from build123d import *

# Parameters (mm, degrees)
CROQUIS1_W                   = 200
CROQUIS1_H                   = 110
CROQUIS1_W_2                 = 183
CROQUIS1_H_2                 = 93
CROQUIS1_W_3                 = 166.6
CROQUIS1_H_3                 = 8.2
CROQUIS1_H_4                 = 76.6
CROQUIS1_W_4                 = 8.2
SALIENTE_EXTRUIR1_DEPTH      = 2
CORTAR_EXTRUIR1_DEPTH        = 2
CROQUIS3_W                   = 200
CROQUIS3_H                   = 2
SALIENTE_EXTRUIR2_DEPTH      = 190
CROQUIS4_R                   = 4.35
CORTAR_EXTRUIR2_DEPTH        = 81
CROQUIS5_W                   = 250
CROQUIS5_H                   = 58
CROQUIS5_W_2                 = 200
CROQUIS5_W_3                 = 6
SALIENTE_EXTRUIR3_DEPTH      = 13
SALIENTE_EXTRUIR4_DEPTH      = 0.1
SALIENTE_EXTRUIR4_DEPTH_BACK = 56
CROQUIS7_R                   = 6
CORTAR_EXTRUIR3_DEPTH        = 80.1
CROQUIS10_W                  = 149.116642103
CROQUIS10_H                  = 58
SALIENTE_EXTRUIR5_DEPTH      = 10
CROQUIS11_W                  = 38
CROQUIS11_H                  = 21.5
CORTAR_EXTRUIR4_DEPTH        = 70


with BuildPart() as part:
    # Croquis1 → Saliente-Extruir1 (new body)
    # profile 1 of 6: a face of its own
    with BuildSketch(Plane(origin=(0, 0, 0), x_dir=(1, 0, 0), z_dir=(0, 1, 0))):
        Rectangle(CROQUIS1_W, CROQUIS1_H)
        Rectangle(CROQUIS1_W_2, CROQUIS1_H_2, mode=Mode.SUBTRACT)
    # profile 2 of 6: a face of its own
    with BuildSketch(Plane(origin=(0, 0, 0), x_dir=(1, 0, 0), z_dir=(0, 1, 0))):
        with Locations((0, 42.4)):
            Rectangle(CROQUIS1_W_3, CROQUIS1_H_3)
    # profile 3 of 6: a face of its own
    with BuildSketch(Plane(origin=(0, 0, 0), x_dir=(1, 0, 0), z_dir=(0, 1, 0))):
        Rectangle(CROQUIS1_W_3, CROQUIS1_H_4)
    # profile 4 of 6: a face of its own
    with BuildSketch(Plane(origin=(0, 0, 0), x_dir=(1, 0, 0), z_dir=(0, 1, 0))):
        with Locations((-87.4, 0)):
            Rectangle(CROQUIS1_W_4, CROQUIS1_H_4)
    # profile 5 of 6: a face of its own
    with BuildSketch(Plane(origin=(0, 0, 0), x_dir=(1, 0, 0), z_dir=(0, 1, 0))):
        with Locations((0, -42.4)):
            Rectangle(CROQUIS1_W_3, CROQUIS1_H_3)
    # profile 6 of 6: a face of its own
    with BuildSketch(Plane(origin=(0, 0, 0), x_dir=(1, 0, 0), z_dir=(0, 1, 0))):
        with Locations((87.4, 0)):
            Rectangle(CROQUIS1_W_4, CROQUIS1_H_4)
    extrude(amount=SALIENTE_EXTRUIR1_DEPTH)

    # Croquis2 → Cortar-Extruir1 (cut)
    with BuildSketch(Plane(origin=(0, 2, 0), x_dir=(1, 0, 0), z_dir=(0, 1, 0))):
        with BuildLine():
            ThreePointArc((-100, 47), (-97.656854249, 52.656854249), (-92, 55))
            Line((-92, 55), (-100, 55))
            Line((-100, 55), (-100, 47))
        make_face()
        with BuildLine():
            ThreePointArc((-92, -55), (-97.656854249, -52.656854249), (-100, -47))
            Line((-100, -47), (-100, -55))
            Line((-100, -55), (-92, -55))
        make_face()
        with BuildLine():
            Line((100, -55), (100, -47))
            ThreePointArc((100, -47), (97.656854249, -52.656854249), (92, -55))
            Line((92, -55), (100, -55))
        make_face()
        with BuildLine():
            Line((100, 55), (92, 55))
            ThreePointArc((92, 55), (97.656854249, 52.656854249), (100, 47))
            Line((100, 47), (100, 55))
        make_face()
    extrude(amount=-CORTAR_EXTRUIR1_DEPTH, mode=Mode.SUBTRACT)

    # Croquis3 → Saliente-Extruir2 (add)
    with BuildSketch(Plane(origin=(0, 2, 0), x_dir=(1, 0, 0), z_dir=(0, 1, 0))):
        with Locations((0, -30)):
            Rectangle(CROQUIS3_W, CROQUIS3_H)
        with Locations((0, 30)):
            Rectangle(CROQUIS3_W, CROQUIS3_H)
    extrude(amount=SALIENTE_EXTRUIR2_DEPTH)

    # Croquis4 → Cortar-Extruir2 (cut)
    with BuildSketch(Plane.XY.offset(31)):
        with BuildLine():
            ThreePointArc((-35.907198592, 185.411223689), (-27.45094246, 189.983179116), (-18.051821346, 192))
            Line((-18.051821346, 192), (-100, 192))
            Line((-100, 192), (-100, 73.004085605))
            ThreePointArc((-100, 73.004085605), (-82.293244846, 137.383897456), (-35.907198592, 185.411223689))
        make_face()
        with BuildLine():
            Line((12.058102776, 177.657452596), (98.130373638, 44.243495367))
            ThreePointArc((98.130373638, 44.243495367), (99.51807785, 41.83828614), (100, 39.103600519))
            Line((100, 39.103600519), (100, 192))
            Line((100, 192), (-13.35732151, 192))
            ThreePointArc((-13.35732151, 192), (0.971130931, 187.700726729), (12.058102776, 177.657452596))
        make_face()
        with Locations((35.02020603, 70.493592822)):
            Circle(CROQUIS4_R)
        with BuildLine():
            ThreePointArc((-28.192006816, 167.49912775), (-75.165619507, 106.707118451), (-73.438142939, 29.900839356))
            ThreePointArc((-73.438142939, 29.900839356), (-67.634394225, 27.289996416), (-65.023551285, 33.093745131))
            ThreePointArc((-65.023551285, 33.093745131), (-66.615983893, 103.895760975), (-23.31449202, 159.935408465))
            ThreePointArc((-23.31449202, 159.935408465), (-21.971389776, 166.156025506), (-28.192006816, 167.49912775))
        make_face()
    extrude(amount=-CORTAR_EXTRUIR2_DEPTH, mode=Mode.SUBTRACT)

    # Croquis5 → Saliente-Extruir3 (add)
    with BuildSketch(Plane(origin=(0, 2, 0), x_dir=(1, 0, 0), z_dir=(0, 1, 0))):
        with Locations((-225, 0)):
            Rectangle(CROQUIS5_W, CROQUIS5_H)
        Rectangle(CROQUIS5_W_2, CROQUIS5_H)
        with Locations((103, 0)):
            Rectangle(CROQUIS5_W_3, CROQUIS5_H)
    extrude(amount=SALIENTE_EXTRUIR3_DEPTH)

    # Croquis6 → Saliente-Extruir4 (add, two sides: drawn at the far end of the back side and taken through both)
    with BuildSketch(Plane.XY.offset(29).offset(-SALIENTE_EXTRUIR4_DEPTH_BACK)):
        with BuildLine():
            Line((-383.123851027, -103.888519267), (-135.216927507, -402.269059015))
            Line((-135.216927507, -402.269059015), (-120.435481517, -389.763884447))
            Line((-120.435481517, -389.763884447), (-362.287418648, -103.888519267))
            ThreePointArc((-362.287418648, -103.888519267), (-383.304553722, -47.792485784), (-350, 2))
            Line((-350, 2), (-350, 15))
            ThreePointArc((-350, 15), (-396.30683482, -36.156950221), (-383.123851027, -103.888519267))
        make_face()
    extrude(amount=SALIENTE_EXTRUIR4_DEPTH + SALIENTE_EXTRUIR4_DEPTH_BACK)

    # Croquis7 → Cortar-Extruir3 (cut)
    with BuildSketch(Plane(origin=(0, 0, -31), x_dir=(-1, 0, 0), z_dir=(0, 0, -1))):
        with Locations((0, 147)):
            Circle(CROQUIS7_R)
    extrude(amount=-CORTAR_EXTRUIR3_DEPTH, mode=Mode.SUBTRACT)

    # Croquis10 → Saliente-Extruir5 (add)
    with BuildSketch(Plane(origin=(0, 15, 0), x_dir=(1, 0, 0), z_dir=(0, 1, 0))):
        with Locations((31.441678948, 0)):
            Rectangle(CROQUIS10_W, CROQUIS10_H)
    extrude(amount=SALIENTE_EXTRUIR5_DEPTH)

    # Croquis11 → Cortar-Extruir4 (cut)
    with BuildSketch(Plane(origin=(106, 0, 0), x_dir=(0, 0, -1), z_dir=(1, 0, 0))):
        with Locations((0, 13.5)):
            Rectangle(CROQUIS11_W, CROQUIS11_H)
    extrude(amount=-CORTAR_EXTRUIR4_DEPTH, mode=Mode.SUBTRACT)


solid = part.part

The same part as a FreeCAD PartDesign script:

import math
import FreeCAD as App
import Part
import Sketcher
from FreeCAD import Vector
Q = App.Units.Quantity

doc = App.newDocument("Part")
params = doc.addObject("Spreadsheet::Sheet", "Params")
for row, (alias, value) in enumerate([
    ("sketch1_width", "200 mm"),
    ("sketch1_height", "110 mm"),
    ("sketch1_width2", "8.2 mm"),
    ("pad1_length", "2 mm"),
    ("sketch2_radius", "8 mm"),
    ("pocket1_length", "2 mm"),
    ("sketch3_width", "200 mm"),
    ("sketch3_height", "2 mm"),
    ("pad2_length", "190 mm"),
    ("sketch4_radius", "8 mm"),
    ("sketch4_diameter", "8.7 mm"),
    ("sketch4_radius2", "4.5 mm"),
    ("pocket2_length", "81 mm"),
    ("sketch5_width", "456 mm"),
    ("sketch5_height", "58 mm"),
    ("pad3_length", "13 mm"),
    ("sketch6_height", "13 mm"),
    ("pad4_length", "0.1 mm"),
    ("pad4_length2", "56 mm"),
    ("sketch7_diameter", "12 mm"),
    ("pocket3_length", "80.1 mm"),
    ("sketch8_height", "58 mm"),
    ("pad5_length", "10 mm"),
    ("sketch9_height", "38 mm"),
    ("sketch9_width", "21.5 mm"),
    ("pocket4_length", "70 mm"),
], start=1):
    params.set(f"A{row}", alias)
    params.set(f"B{row}", "=" + value)
    params.setAlias(f"B{row}", alias)

body = doc.addObject("PartDesign::Body", "Body")

# Sketch on XZ plane
sketch1 = body.newObject("Sketcher::SketchObject", "Sketch")
sketch1.AttachmentSupport = (doc.getObject("XZ_Plane"), [""])
sketch1.MapMode = "FlatFace"
sketch1.addGeometry([
    Part.LineSegment(Vector(-100, -55, 0), Vector(-100, 55, 0)),  # 0
    Part.LineSegment(Vector(-100, 55, 0), Vector(100, 55, 0)),  # 1
    Part.LineSegment(Vector(100, 55, 0), Vector(100, -55, 0)),  # 2
    Part.LineSegment(Vector(100, -55, 0), Vector(-100, -55, 0)),  # 3
    Part.LineSegment(Vector(-83.3, 46.5, 0), Vector(-91.5, 46.5, 0)),  # 4
    Part.LineSegment(Vector(-91.5, 46.5, 0), Vector(-91.5, 38.3, 0)),  # 5
    Part.LineSegment(Vector(-91.5, 38.3, 0), Vector(-83.3, 38.3, 0)),  # 6
    Part.LineSegment(Vector(-83.3, 38.3, 0), Vector(-83.3, 46.5, 0)),  # 7
    Part.LineSegment(Vector(91.5, 46.5, 0), Vector(83.3, 46.5, 0)),  # 8
    Part.LineSegment(Vector(83.3, 46.5, 0), Vector(83.3, 38.3, 0)),  # 9
    Part.LineSegment(Vector(83.3, 38.3, 0), Vector(91.5, 38.3, 0)),  # 10
    Part.LineSegment(Vector(91.5, 38.3, 0), Vector(91.5, 46.5, 0)),  # 11
    Part.LineSegment(Vector(91.5, -46.5, 0), Vector(91.5, -38.3, 0)),  # 12
    Part.LineSegment(Vector(91.5, -38.3, 0), Vector(83.3, -38.3, 0)),  # 13
    Part.LineSegment(Vector(83.3, -38.3, 0), Vector(83.3, -46.5, 0)),  # 14
    Part.LineSegment(Vector(83.3, -46.5, 0), Vector(91.5, -46.5, 0)),  # 15
    Part.LineSegment(Vector(-91.5, -46.5, 0), Vector(-83.3, -46.5, 0)),  # 16
    Part.LineSegment(Vector(-83.3, -46.5, 0), Vector(-83.3, -38.3, 0)),  # 17
    Part.LineSegment(Vector(-83.3, -38.3, 0), Vector(-91.5, -38.3, 0)),  # 18
    Part.LineSegment(Vector(-91.5, -38.3, 0), Vector(-91.5, -46.5, 0)),  # 19
], False)
sketch1.addConstraint([
    Sketcher.Constraint("Coincident", 0, 2, 1, 1),
    Sketcher.Constraint("Coincident", 1, 2, 2, 1),
    Sketcher.Constraint("Coincident", 2, 2, 3, 1),
    Sketcher.Constraint("Coincident", 3, 2, 0, 1),
    Sketcher.Constraint("Coincident", 4, 2, 5, 1),
    Sketcher.Constraint("Coincident", 5, 2, 6, 1),
    Sketcher.Constraint("Coincident", 6, 2, 7, 1),
    Sketcher.Constraint("Coincident", 7, 2, 4, 1),
    Sketcher.Constraint("Coincident", 8, 2, 9, 1),
    Sketcher.Constraint("Coincident", 9, 2, 10, 1),
    Sketcher.Constraint("Coincident", 10, 2, 11, 1),
    Sketcher.Constraint("Coincident", 11, 2, 8, 1),
    Sketcher.Constraint("Coincident", 12, 2, 13, 1),
    Sketcher.Constraint("Coincident", 13, 2, 14, 1),
    Sketcher.Constraint("Coincident", 14, 2, 15, 1),
    Sketcher.Constraint("Coincident", 15, 2, 12, 1),
    Sketcher.Constraint("Coincident", 16, 2, 17, 1),
    Sketcher.Constraint("Coincident", 17, 2, 18, 1),
    Sketcher.Constraint("Coincident", 18, 2, 19, 1),
    Sketcher.Constraint("Coincident", 19, 2, 16, 1),
    Sketcher.Constraint("Vertical", 0),
    Sketcher.Constraint("Horizontal", 1),
    Sketcher.Constraint("Vertical", 2),
    Sketcher.Constraint("Horizontal", 3),
    Sketcher.Constraint("Horizontal", 4),
    Sketcher.Constraint("Vertical", 5),
    Sketcher.Constraint("Horizontal", 6),
    Sketcher.Constraint("Vertical", 7),
    Sketcher.Constraint("Horizontal", 8),
    Sketcher.Constraint("Vertical", 9),
    Sketcher.Constraint("Horizontal", 10),
    Sketcher.Constraint("Vertical", 11),
    Sketcher.Constraint("Vertical", 12),
    Sketcher.Constraint("Horizontal", 13),
    Sketcher.Constraint("Vertical", 14),
    Sketcher.Constraint("Horizontal", 15),
    Sketcher.Constraint("Horizontal", 16),
    Sketcher.Constraint("Vertical", 17),
    Sketcher.Constraint("Horizontal", 18),
    Sketcher.Constraint("Vertical", 19),
    Sketcher.Constraint("Symmetric", 0, 2, 2, 2, -1, 1),
    Sketcher.Constraint("Symmetric", 5, 2, 12, 2, -1, 1),
    Sketcher.Constraint("Symmetric", 7, 2, 14, 2, -1, 1),
    Sketcher.Constraint("Symmetric", 8, 2, 16, 2, -1, 1),
    Sketcher.Constraint("Symmetric", 10, 2, 18, 2, -1, 1),
    Sketcher.Constraint("Symmetric", 7, 2, 8, 2, -2),
    Sketcher.Constraint("Symmetric", 5, 2, 10, 2, -2),
    Sketcher.Constraint("Equal", 18, 5),
    Sketcher.Constraint("DistanceX", 1, 1, 1, 2, Q("200 mm")),
    Sketcher.Constraint("DistanceY", 0, 1, 0, 2, Q("110 mm")),
    Sketcher.Constraint("DistanceX", 4, 2, 4, 1, Q("8.2 mm")),
    Sketcher.Constraint("DistanceY", 16, 2, 7, 2, Q("93 mm")),
    Sketcher.Constraint("DistanceX", 4, 2, -1, 1, Q("91.5 mm")),
])
sketch1.setExpression("Constraints[48]", "Params.sketch1_width")
sketch1.setExpression("Constraints[49]", "Params.sketch1_height")
sketch1.setExpression("Constraints[50]", "Params.sketch1_width2")
pad1 = body.newObject("PartDesign::Pad", "Pad")
pad1.Profile = sketch1
pad1.setExpression("Length", "Params.pad1_length")
pad1.Reversed = True

# Sketch on XZ plane
sketch2 = body.newObject("Sketcher::SketchObject", "Sketch001")
sketch2.AttachmentSupport = (doc.getObject("XZ_Plane"), [""])
sketch2.MapMode = "FlatFace"
sketch2.AttachmentOffset = App.Placement(Vector(0, 0, -2), App.Rotation())
sketch2.addGeometry([
    Part.ArcOfCircle(Part.Circle(Vector(-92, -47, 0), Vector(0, 0, 1), 8), math.radians(-180), math.radians(-90)),  # 0
    Part.LineSegment(Vector(-92, -55, 0), Vector(-100, -55, 0)),  # 1
    Part.LineSegment(Vector(-100, -55, 0), Vector(-100, -47, 0)),  # 2
    Part.ArcOfCircle(Part.Circle(Vector(-92, 47, 0), Vector(0, 0, 1), 8), math.radians(90), math.radians(180)),  # 3
    Part.LineSegment(Vector(-100, 47, 0), Vector(-100, 55, 0)),  # 4
    Part.LineSegment(Vector(-100, 55, 0), Vector(-92, 55, 0)),  # 5
    Part.LineSegment(Vector(100, 55, 0), Vector(100, 47, 0)),  # 6
    Part.ArcOfCircle(Part.Circle(Vector(92, 47, 0), Vector(0, 0, 1), 8), math.radians(0), math.radians(90)),  # 7
    Part.LineSegment(Vector(92, 55, 0), Vector(100, 55, 0)),  # 8
    Part.LineSegment(Vector(100, -55, 0), Vector(92, -55, 0)),  # 9
    Part.ArcOfCircle(Part.Circle(Vector(92, -47, 0), Vector(0, 0, 1), 8), math.radians(-90), math.radians(0)),  # 10
    Part.LineSegment(Vector(100, -47, 0), Vector(100, -55, 0)),  # 11
], False)
sketch2.addConstraint([
    Sketcher.Constraint("Tangent", 0, 2, 1, 1),
    Sketcher.Constraint("Coincident", 1, 2, 2, 1),
    Sketcher.Constraint("Tangent", 2, 2, 0, 1),
    Sketcher.Constraint("Tangent", 3, 2, 4, 1),
    Sketcher.Constraint("Coincident", 4, 2, 5, 1),
    Sketcher.Constraint("Tangent", 5, 2, 3, 1),
    Sketcher.Constraint("Tangent", 6, 2, 7, 1),
    Sketcher.Constraint("Tangent", 7, 2, 8, 1),
    Sketcher.Constraint("Coincident", 8, 2, 6, 1),
    Sketcher.Constraint("Tangent", 9, 2, 10, 1),
    Sketcher.Constraint("Tangent", 10, 2, 11, 1),
    Sketcher.Constraint("Coincident", 11, 2, 9, 1),
    Sketcher.Constraint("Horizontal", 1),
    Sketcher.Constraint("Vertical", 2),
    Sketcher.Constraint("Vertical", 4),
    Sketcher.Constraint("Horizontal", 5),
    Sketcher.Constraint("Vertical", 6),
    Sketcher.Constraint("Horizontal", 8),
    Sketcher.Constraint("Horizontal", 9),
    Sketcher.Constraint("Vertical", 11),
    Sketcher.Constraint("Equal", 0, 3),
    Sketcher.Constraint("Equal", 3, 7),
    Sketcher.Constraint("Equal", 7, 10),
    Sketcher.Constraint("Symmetric", 0, 3, 7, 3, -1, 1),
    Sketcher.Constraint("Symmetric", 3, 3, 10, 3, -1, 1),
    Sketcher.Constraint("Symmetric", 3, 3, 7, 3, -2),
    Sketcher.Constraint("Radius", 0, Q("8 mm")),
    Sketcher.Constraint("DistanceX", 0, 3, -1, 1, Q("92 mm")),
    Sketcher.Constraint("DistanceY", 0, 3, -1, 1, Q("47 mm")),
])
sketch2.setExpression("Constraints[26]", "Params.sketch2_radius")
pocket1 = body.newObject("PartDesign::Pocket", "Pocket")
pocket1.Profile = sketch2
pocket1.setExpression("Length", "Params.pocket1_length")
pocket1.Reversed = True

# Sketch on XZ plane
sketch3 = body.newObject("Sketcher::SketchObject", "Sketch002")
sketch3.AttachmentSupport = (doc.getObject("XZ_Plane"), [""])
sketch3.MapMode = "FlatFace"
sketch3.AttachmentOffset = App.Placement(Vector(0, 0, -2), App.Rotation())
sketch3.addGeometry([
    Part.LineSegment(Vector(-100, 29, 0), Vector(-100, 31, 0)),  # 0
    Part.LineSegment(Vector(-100, 31, 0), Vector(100, 31, 0)),  # 1
    Part.LineSegment(Vector(100, 31, 0), Vector(100, 29, 0)),  # 2
    Part.LineSegment(Vector(100, 29, 0), Vector(-100, 29, 0)),  # 3
    Part.LineSegment(Vector(-100, -31, 0), Vector(-100, -29, 0)),  # 4
    Part.LineSegment(Vector(-100, -29, 0), Vector(100, -29, 0)),  # 5
    Part.LineSegment(Vector(100, -29, 0), Vector(100, -31, 0)),  # 6
    Part.LineSegment(Vector(100, -31, 0), Vector(-100, -31, 0)),  # 7
], False)
sketch3.addConstraint([
    Sketcher.Constraint("Coincident", 0, 2, 1, 1),
    Sketcher.Constraint("Coincident", 1, 2, 2, 1),
    Sketcher.Constraint("Coincident", 2, 2, 3, 1),
    Sketcher.Constraint("Coincident", 3, 2, 0, 1),
    Sketcher.Constraint("Coincident", 4, 2, 5, 1),
    Sketcher.Constraint("Coincident", 5, 2, 6, 1),
    Sketcher.Constraint("Coincident", 6, 2, 7, 1),
    Sketcher.Constraint("Coincident", 7, 2, 4, 1),
    Sketcher.Constraint("Vertical", 0),
    Sketcher.Constraint("Horizontal", 1),
    Sketcher.Constraint("Vertical", 2),
    Sketcher.Constraint("Horizontal", 3),
    Sketcher.Constraint("Vertical", 4),
    Sketcher.Constraint("Horizontal", 5),
    Sketcher.Constraint("Vertical", 6),
    Sketcher.Constraint("Horizontal", 7),
    Sketcher.Constraint("Symmetric", 2, 2, 4, 2, -1, 1),
    Sketcher.Constraint("Symmetric", 0, 2, 6, 2, -1, 1),
    Sketcher.Constraint("Vertical", 3, 2, 4, 2),
    Sketcher.Constraint("DistanceX", 1, 1, 1, 2, Q("200 mm")),
    Sketcher.Constraint("DistanceY", 0, 1, 0, 2, Q("2 mm")),
    Sketcher.Constraint("DistanceY", -1, 1, 0, 2, Q("31 mm")),
])
sketch3.setExpression("Constraints[19]", "Params.sketch3_width")
sketch3.setExpression("Constraints[20]", "Params.sketch3_height")
pad2 = body.newObject("PartDesign::Pad", "Pad001")
pad2.Profile = sketch3
pad2.setExpression("Length", "Params.pad2_length")
pad2.Reversed = True

# Sketch on XY plane
sketch4 = body.newObject("Sketcher::SketchObject", "Sketch003")
sketch4.AttachmentSupport = (doc.getObject("XY_Plane"), [""])
sketch4.MapMode = "FlatFace"
sketch4.AttachmentOffset = App.Placement(Vector(0, 0, 31), App.Rotation())
sketch4.addGeometry([
    Part.ArcOfCircle(Part.Circle(Vector(-15.704571, 158.150882, 0), Vector(0, 0, 1), 33.930405), math.radians(93.966797), math.radians(126.542128)),  # 0
    Part.LineSegment(Vector(-18.051821, 192, 0), Vector(-100, 192, 0)),  # 1
    Part.LineSegment(Vector(-100, 192, 0), Vector(-100, 73.004086, 0)),  # 2
    Part.ArcOfCircle(Part.Circle(Vector(35.020206, 70.493593, 0), Vector(0, 0, 1), 135.043543), math.radians(121.682972), math.radians(178.934796)),  # 3
    Part.LineSegment(Vector(12.058103, 177.657453, 0), Vector(98.130374, 44.243495, 0)),  # 4
    Part.ArcOfCircle(Part.Circle(Vector(92, 39.103601, 0), Vector(0, 0, 1), 8), math.radians(0), math.radians(39.977509)),  # 5
    Part.LineSegment(Vector(100, 39.103601, 0), Vector(100, 192, 0)),  # 6
    Part.LineSegment(Vector(100, 192, 0), Vector(-13.357322, 192, 0)),  # 7
    Part.ArcOfCircle(Part.Circle(Vector(-15.704571, 158.150882, 0), Vector(0, 0, 1), 33.930405), math.radians(35.09259), math.radians(86.033203)),  # 8
    Part.Circle(Vector(35.020206, 70.493593, 0), Vector(0, 0, 1), 4.35),  # 9
    Part.ArcOfCircle(Part.Circle(Vector(34.200954, 70.744354, 0), Vector(0, 0, 1), 115.127616), math.radians(122.816216), math.radians(200.779184)),  # 10
    Part.ArcOfCircle(Part.Circle(Vector(-69.230847, 31.497292, 0), Vector(0, 0, 1), 4.5), math.radians(-159.220816), math.radians(20.779184)),  # 11
    Part.ArcOfCircle(Part.Circle(Vector(34.200954, 70.744354, 0), Vector(0, 0, 1), 106.127616), math.radians(122.816216), math.radians(200.779184)),  # 12
    Part.ArcOfCircle(Part.Circle(Vector(-25.753249, 163.717268, 0), Vector(0, 0, 1), 4.5), math.radians(-57.183784), math.radians(122.816216)),  # 13
], False)
sketch4.addConstraint([
    Sketcher.Constraint("Coincident", 0, 1, 1, 1),
    Sketcher.Constraint("Coincident", 1, 2, 2, 1),
    Sketcher.Constraint("Coincident", 2, 2, 3, 2),
    Sketcher.Constraint("Coincident", 3, 1, 0, 2),
    Sketcher.Constraint("Coincident", 4, 2, 5, 2),
    Sketcher.Constraint("Tangent", 5, 1, 6, 1),
    Sketcher.Constraint("Coincident", 6, 2, 7, 1),
    Sketcher.Constraint("Coincident", 7, 2, 8, 2),
    Sketcher.Constraint("Coincident", 8, 1, 4, 1),
    Sketcher.Constraint("Tangent", 10, 2, 11, 1),
    Sketcher.Constraint("Tangent", 11, 2, 12, 2),
    Sketcher.Constraint("Tangent", 12, 1, 13, 1),
    Sketcher.Constraint("Tangent", 13, 2, 10, 1),
    Sketcher.Constraint("Horizontal", 1),
    Sketcher.Constraint("Vertical", 2),
    Sketcher.Constraint("Vertical", 6),
    Sketcher.Constraint("Horizontal", 7),
    Sketcher.Constraint("Coincident", 8, 3, 0, 3),
    Sketcher.Constraint("Coincident", 9, 3, 3, 3),
    Sketcher.Constraint("Coincident", 12, 3, 10, 3),
    Sketcher.Constraint("Equal", 0, 8),
    Sketcher.Constraint("Symmetric", 1, 2, 6, 2, -2),
    Sketcher.Constraint("Radius", 5, Q("8 mm")),
    Sketcher.Constraint("Diameter", 9, Q("8.7 mm")),
    Sketcher.Constraint("Radius", 11, Q("4.5 mm")),
    Sketcher.Constraint("DistanceX", -1, 1, 5, 3, Q("92 mm")),
    Sketcher.Constraint("DistanceY", -1, 1, 0, 1, Q("192 mm")),
    Sketcher.Constraint("DistanceY", 6, 1, 6, 2, Q("152.896399 mm")),
    Sketcher.Constraint("Radius", 0, Q("33.930405 mm")),
    Sketcher.Constraint("Radius", 3, Q("135.043543 mm")),
    Sketcher.Constraint("Radius", 10, Q("115.127616 mm")),
    Sketcher.Constraint("DistanceX", 1, 2, 1, 1, Q("81.948179 mm")),
    Sketcher.Constraint("DistanceX", 7, 2, 7, 1, Q("113.357322 mm")),
    Sketcher.Constraint("DistanceX", 3, 1, -1, 1, Q("35.907199 mm")),
    Sketcher.Constraint("DistanceX", 11, 3, 10, 3, Q("103.431801 mm")),
    Sketcher.Constraint("DistanceY", 11, 3, 9, 3, Q("38.996301 mm")),
    Sketcher.Constraint("Distance", 4, Q("158.769392 mm")),
    Sketcher.Constraint("DistanceY", 2, 2, 2, 1, Q("118.995914 mm")),
    Sketcher.Constraint("DistanceX", 13, 3, -1, 1, Q("25.753249 mm")),
    Sketcher.Constraint("DistanceY", -1, 1, 13, 3, Q("163.717268 mm")),
    Sketcher.Constraint("DistanceX", 10, 3, 4, 2, Q("63.929419 mm")),
])
sketch4.setExpression("Constraints[22]", "Params.sketch4_radius")
sketch4.setExpression("Constraints[23]", "Params.sketch4_diameter")
sketch4.setExpression("Constraints[24]", "Params.sketch4_radius2")
pocket2 = body.newObject("PartDesign::Pocket", "Pocket001")
pocket2.Profile = sketch4
pocket2.setExpression("Length", "Params.pocket2_length")

# Sketch on XZ plane
sketch5 = body.newObject("Sketcher::SketchObject", "Sketch004")
sketch5.AttachmentSupport = (doc.getObject("XZ_Plane"), [""])
sketch5.MapMode = "FlatFace"
sketch5.AttachmentOffset = App.Placement(Vector(0, 0, -2), App.Rotation())
sketch5.addGeometry([
    Part.LineSegment(Vector(-350, -29, 0), Vector(-350, 29, 0)),
    Part.LineSegment(Vector(-350, 29, 0), Vector(106, 29, 0)),
    Part.LineSegment(Vector(106, 29, 0), Vector(106, -29, 0)),
    Part.LineSegment(Vector(106, -29, 0), Vector(-350, -29, 0)),
], False)
sketch5.addConstraint([
    Sketcher.Constraint("Coincident", 0, 2, 1, 1),
    Sketcher.Constraint("Coincident", 1, 2, 2, 1),
    Sketcher.Constraint("Coincident", 2, 2, 3, 1),
    Sketcher.Constraint("Coincident", 3, 2, 0, 1),
    Sketcher.Constraint("Vertical", 0),
    Sketcher.Constraint("Horizontal", 1),
    Sketcher.Constraint("Vertical", 2),
    Sketcher.Constraint("Horizontal", 3),
    Sketcher.Constraint("DistanceX", 1, 1, 1, 2, Q("456 mm")),
    Sketcher.Constraint("DistanceY", 0, 1, 0, 2, Q("58 mm")),
    Sketcher.Constraint("DistanceX", 0, 2, -1, 1, Q("350 mm")),
    Sketcher.Constraint("DistanceY", -1, 1, 0, 2, Q("29 mm")),
])
sketch5.setExpression("Constraints[8]", "Params.sketch5_width")
sketch5.setExpression("Constraints[9]", "Params.sketch5_height")
pad3 = body.newObject("PartDesign::Pad", "Pad002")
pad3.Profile = sketch5
pad3.setExpression("Length", "Params.pad3_length")
pad3.Reversed = True

# Sketch on XY plane
sketch6 = body.newObject("Sketcher::SketchObject", "Sketch005")
sketch6.AttachmentSupport = (doc.getObject("XY_Plane"), [""])
sketch6.MapMode = "FlatFace"
sketch6.AttachmentOffset = App.Placement(Vector(0, 0, 29), App.Rotation())
sketch6.addGeometry([
    Part.LineSegment(Vector(-383.123851, -103.888519, 0), Vector(-135.216928, -402.269059, 0)),  # 0
    Part.LineSegment(Vector(-135.216928, -402.269059, 0), Vector(-120.435482, -389.763884, 0)),  # 1
    Part.LineSegment(Vector(-120.435482, -389.763884, 0), Vector(-362.287419, -103.888519, 0)),  # 2
    Part.ArcOfCircle(Part.Circle(Vector(-318.122374, -55.356297, 0), Vector(0, 0, 1), 65.619569), math.radians(119.06454), math.radians(227.697339)),  # 3
    Part.LineSegment(Vector(-350, 2, 0), Vector(-350, 15, 0)),  # 4
    Part.ArcOfCircle(Part.Circle(Vector(-322.035645, -56.849847, 0), Vector(0, 0, 1), 77.099972), math.radians(111.266261), math.radians(217.596715)),  # 5
], False)
sketch6.addConstraint([
    Sketcher.Constraint("Coincident", 0, 2, 1, 1),
    Sketcher.Constraint("Coincident", 1, 2, 2, 1),
    Sketcher.Constraint("Coincident", 2, 2, 3, 2),
    Sketcher.Constraint("Coincident", 3, 1, 4, 1),
    Sketcher.Constraint("Coincident", 4, 2, 5, 1),
    Sketcher.Constraint("Coincident", 5, 2, 0, 1),
    Sketcher.Constraint("Vertical", 4),
    Sketcher.Constraint("Perpendicular", 1, 2),
    Sketcher.Constraint("Horizontal", 2, 2, 5, 2),
    Sketcher.Constraint("DistanceY", 4, 1, 4, 2, Q("13 mm")),
    Sketcher.Constraint("DistanceX", 3, 1, -1, 1, Q("350 mm")),
    Sketcher.Constraint("DistanceY", -1, 1, 3, 1, Q("2 mm")),
    Sketcher.Constraint("Radius", 3, Q("65.619569 mm")),
    Sketcher.Constraint("Radius", 5, Q("77.099972 mm")),
    Sketcher.Constraint("DistanceY", 0, 2, -1, 1, Q("402.269059 mm")),
    Sketcher.Constraint("DistanceX", 1, 2, -1, 1, Q("120.435482 mm")),
    Sketcher.Constraint("DistanceX", 2, 2, -1, 1, Q("362.287419 mm")),
    Sketcher.Constraint("DistanceY", 2, 2, -1, 1, Q("103.888519 mm")),
    Sketcher.Constraint("DistanceX", 5, 2, -1, 1, Q("383.123851 mm")),
    Sketcher.Constraint("DistanceX", 2, 2, 0, 2, Q("227.070491 mm")),
])
sketch6.setExpression("Constraints[9]", "Params.sketch6_height")
pad4 = body.newObject("PartDesign::Pad", "Pad003")
pad4.Profile = sketch6
pad4.Type = "TwoLengths"
pad4.setExpression("Length", "Params.pad4_length")
pad4.setExpression("Length2", "Params.pad4_length2")

# Sketch on XY plane
sketch7 = body.newObject("Sketcher::SketchObject", "Sketch006")
sketch7.AttachmentSupport = (doc.getObject("XY_Plane"), [""])
sketch7.MapMode = "FlatFace"
sketch7.AttachmentOffset = App.Placement(Vector(0, 0, -31), App.Rotation())
sketch7.addGeometry(Part.Circle(Vector(0, 147, 0), Vector(0, 0, 1), 6), False)
sketch7.addConstraint([
    Sketcher.Constraint("PointOnObject", 0, 3, -2),
    Sketcher.Constraint("Diameter", 0, Q("12 mm")),
    Sketcher.Constraint("DistanceY", -1, 1, 0, 3, Q("147 mm")),
])
sketch7.setExpression("Constraints[1]", "Params.sketch7_diameter")
pocket3 = body.newObject("PartDesign::Pocket", "Pocket002")
pocket3.Profile = sketch7
pocket3.setExpression("Length", "Params.pocket3_length")
pocket3.Reversed = True

# Sketch on XZ plane
sketch8 = body.newObject("Sketcher::SketchObject", "Sketch007")
sketch8.AttachmentSupport = (doc.getObject("XZ_Plane"), [""])
sketch8.MapMode = "FlatFace"
sketch8.AttachmentOffset = App.Placement(Vector(0, 0, -15), App.Rotation())
sketch8.addGeometry([
    Part.LineSegment(Vector(-43.116642, -29, 0), Vector(-43.116642, 29, 0)),
    Part.LineSegment(Vector(-43.116642, 29, 0), Vector(106, 29, 0)),
    Part.LineSegment(Vector(106, 29, 0), Vector(106, -29, 0)),
    Part.LineSegment(Vector(106, -29, 0), Vector(-43.116642, -29, 0)),
], False)
sketch8.addConstraint([
    Sketcher.Constraint("Coincident", 0, 2, 1, 1),
    Sketcher.Constraint("Coincident", 1, 2, 2, 1),
    Sketcher.Constraint("Coincident", 2, 2, 3, 1),
    Sketcher.Constraint("Coincident", 3, 2, 0, 1),
    Sketcher.Constraint("Vertical", 0),
    Sketcher.Constraint("Horizontal", 1),
    Sketcher.Constraint("Vertical", 2),
    Sketcher.Constraint("Horizontal", 3),
    Sketcher.Constraint("DistanceY", 0, 1, 0, 2, Q("58 mm")),
    Sketcher.Constraint("DistanceY", -1, 1, 0, 2, Q("29 mm")),
    Sketcher.Constraint("DistanceX", -1, 1, 1, 2, Q("106 mm")),
    Sketcher.Constraint("DistanceX", 1, 1, 1, 2, Q("149.116642 mm")),
])
sketch8.setExpression("Constraints[8]", "Params.sketch8_height")
pad5 = body.newObject("PartDesign::Pad", "Pad004")
pad5.Profile = sketch8
pad5.setExpression("Length", "Params.pad5_length")
pad5.Reversed = True

# Sketch on YZ plane
sketch9 = body.newObject("Sketcher::SketchObject", "Sketch008")
sketch9.AttachmentSupport = (doc.getObject("YZ_Plane"), [""])
sketch9.MapMode = "FlatFace"
sketch9.AttachmentOffset = App.Placement(Vector(0, 0, 106), App.Rotation())
sketch9.addGeometry([
    Part.LineSegment(Vector(24.25, 19, 0), Vector(2.75, 19, 0)),
    Part.LineSegment(Vector(2.75, 19, 0), Vector(2.75, -19, 0)),
    Part.LineSegment(Vector(2.75, -19, 0), Vector(24.25, -19, 0)),
    Part.LineSegment(Vector(24.25, -19, 0), Vector(24.25, 19, 0)),
], False)
sketch9.addConstraint([
    Sketcher.Constraint("Coincident", 0, 2, 1, 1),
    Sketcher.Constraint("Coincident", 1, 2, 2, 1),
    Sketcher.Constraint("Coincident", 2, 2, 3, 1),
    Sketcher.Constraint("Coincident", 3, 2, 0, 1),
    Sketcher.Constraint("Horizontal", 0),
    Sketcher.Constraint("Vertical", 1),
    Sketcher.Constraint("Horizontal", 2),
    Sketcher.Constraint("Vertical", 3),
    Sketcher.Constraint("DistanceY", 1, 2, 1, 1, Q("38 mm")),
    Sketcher.Constraint("DistanceX", 0, 2, 0, 1, Q("21.5 mm")),
    Sketcher.Constraint("DistanceY", -1, 1, 0, 2, Q("19 mm")),
    Sketcher.Constraint("DistanceX", -1, 1, 0, 2, Q("2.75 mm")),
])
sketch9.setExpression("Constraints[8]", "Params.sketch9_height")
sketch9.setExpression("Constraints[9]", "Params.sketch9_width")
pocket4 = body.newObject("PartDesign::Pocket", "Pocket003")
pocket4.Profile = sketch9
pocket4.setExpression("Length", "Params.pocket4_length")

doc.recompute()
